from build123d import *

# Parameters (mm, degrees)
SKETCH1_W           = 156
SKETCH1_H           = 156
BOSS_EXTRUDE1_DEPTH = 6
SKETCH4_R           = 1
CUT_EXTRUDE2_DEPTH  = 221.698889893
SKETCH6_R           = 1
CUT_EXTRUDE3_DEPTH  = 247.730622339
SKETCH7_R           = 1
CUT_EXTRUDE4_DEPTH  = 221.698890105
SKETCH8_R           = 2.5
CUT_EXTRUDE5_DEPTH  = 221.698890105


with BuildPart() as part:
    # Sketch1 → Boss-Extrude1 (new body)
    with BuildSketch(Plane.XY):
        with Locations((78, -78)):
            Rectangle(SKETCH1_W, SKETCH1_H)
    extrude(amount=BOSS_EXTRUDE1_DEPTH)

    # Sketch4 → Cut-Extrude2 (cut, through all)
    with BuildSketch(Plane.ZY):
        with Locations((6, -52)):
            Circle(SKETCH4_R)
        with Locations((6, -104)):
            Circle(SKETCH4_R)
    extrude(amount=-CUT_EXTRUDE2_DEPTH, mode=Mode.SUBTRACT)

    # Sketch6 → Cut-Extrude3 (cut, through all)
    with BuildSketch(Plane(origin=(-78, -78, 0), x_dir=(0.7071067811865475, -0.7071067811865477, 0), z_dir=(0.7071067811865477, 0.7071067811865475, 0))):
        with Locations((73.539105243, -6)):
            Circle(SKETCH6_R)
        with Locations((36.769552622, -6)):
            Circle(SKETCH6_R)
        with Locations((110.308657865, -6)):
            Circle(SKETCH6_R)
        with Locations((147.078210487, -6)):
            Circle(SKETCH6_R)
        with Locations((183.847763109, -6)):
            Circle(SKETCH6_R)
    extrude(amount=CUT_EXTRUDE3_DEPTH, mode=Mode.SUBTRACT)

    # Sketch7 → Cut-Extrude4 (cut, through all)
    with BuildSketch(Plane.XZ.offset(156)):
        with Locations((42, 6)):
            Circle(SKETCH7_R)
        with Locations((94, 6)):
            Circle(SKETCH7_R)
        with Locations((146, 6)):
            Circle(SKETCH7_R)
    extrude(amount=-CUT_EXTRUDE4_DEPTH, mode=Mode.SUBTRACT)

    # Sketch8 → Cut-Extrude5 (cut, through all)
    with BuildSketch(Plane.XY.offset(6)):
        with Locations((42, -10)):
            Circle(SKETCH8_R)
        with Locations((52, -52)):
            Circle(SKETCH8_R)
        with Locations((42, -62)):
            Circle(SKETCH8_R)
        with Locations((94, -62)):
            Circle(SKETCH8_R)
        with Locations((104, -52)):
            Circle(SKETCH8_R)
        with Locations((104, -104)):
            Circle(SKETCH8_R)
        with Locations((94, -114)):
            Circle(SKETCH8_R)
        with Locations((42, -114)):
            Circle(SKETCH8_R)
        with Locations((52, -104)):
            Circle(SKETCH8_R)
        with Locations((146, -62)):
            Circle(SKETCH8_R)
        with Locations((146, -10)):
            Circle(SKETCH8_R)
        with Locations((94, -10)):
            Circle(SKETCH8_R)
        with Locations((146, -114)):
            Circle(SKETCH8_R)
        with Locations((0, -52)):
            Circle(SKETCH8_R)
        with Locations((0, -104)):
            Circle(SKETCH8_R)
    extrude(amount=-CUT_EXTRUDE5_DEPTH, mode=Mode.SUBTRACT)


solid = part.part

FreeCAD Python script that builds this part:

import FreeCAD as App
import Part
import Sketcher

V = App.Vector
Q = App.Units.Quantity


def add_polygon(sketch, points):
    """Adds a closed chain of lines whose ends are joined by coincident constraints."""
    first, n = sketch.GeometryCount, len(points)
    for a, b in zip(points, points[1:] + points[:1]):
        sketch.addGeometry(Part.LineSegment(App.Vector(*a, 0), App.Vector(*b, 0)), False)
    for i in range(n):
        sketch.addConstraint(Sketcher.Constraint("Coincident", first + i, 2, first + (i + 1) % n, 1))

doc = App.newDocument("Part")
body = doc.addObject("PartDesign::Body", "Body")

# Sketch on XY plane
sketch1 = doc.addObject("Sketcher::SketchObject", "Sketch")
body.addObject(sketch1)
sketch1.AttachmentSupport = (doc.XY_Plane, [""])
sketch1.MapMode = "FlatFace"
add_polygon(sketch1, [(0, 0), (0, -156), (156, -156), (156, 0)])  # lines 0-3
sketch1.addConstraint(Sketcher.Constraint("Vertical", 0))
sketch1.addConstraint(Sketcher.Constraint("Horizontal", 1))
sketch1.addConstraint(Sketcher.Constraint("Vertical", 2))
sketch1.addConstraint(Sketcher.Constraint("Horizontal", 3))
sketch1.addConstraint(Sketcher.Constraint("Coincident", 3, 2, -1, 1))
sketch1.addConstraint(Sketcher.Constraint("Equal", 3, 0))
sketch1.addConstraint(Sketcher.Constraint("DistanceX", 1, 1, 1, 2, Q("156 mm")))
pad1 = doc.addObject("PartDesign::Pad", "Pad")
body.addObject(pad1)
pad1.Profile = sketch1
pad1.Length = 6

# Sketch on YZ plane
sketch2 = doc.addObject("Sketcher::SketchObject", "Sketch001")
body.addObject(sketch2)
sketch2.AttachmentSupport = (doc.YZ_Plane, [""])
sketch2.MapMode = "FlatFace"
sketch2.addGeometry(Part.Circle(V(-52, 6, 0), V(0, 0, 1), 1), False)
sketch2.addGeometry(Part.Circle(V(-104, 6, 0), V(0, 0, 1), 1), False)
sketch2.addConstraint(Sketcher.Constraint("Equal", 0, 1))
sketch2.addConstraint(Sketcher.Constraint("Horizontal", 0, 3, 1, 3))
sketch2.addConstraint(Sketcher.Constraint("Diameter", 0, Q("2 mm")))
sketch2.addConstraint(Sketcher.Constraint("DistanceX", 0, 3, -1, 1, Q("52 mm")))
sketch2.addConstraint(Sketcher.Constraint("DistanceY", -1, 1, 0, 3, Q("6 mm")))
sketch2.addConstraint(Sketcher.Constraint("DistanceX", 1, 3, -1, 1, Q("104 mm")))
pocket1 = doc.addObject("PartDesign::Pocket", "Pocket")
body.addObject(pocket1)
pocket1.Profile = sketch2
pocket1.Type = "ThroughAll"
pocket1.Reversed = True

# Sketch on an angled plane
sketch3 = doc.addObject("Sketcher::SketchObject", "Sketch002")
body.addObject(sketch3)
sketch3.Placement = App.Placement(V(-78, -78, 0), App.Rotation(V(0.707106781, -0.707106781, 0), V(0, 0, -0.999999999), V(0.707106781, 0.707106781, 0), "ZXY"))
sketch3.addGeometry(Part.Circle(V(73.539105, -6, 0), V(0, 0, 1), 1), False)
sketch3.addGeometry(Part.Circle(V(36.769553, -6, 0), V(0, 0, 1), 1), False)
sketch3.addGeometry(Part.Circle(V(110.308658, -6, 0), V(0, 0, 1), 1), False)
sketch3.addGeometry(Part.Circle(V(147.07821, -6, 0), V(0, 0, 1), 1), False)
sketch3.addGeometry(Part.Circle(V(183.847763, -6, 0), V(0, 0, 1), 1), False)
sketch3.addConstraint(Sketcher.Constraint("Equal", 0, 1))
sketch3.addConstraint(Sketcher.Constraint("Equal", 1, 2))
sketch3.addConstraint(Sketcher.Constraint("Equal", 2, 3))
sketch3.addConstraint(Sketcher.Constraint("Equal", 3, 4))
sketch3.addConstraint(Sketcher.Constraint("Horizontal", 0, 3, 1, 3))
sketch3.addConstraint(Sketcher.Constraint("Horizontal", 1, 3, 2, 3))
sketch3.addConstraint(Sketcher.Constraint("Horizontal", 2, 3, 3, 3))
sketch3.addConstraint(Sketcher.Constraint("Horizontal", 3, 3, 4, 3))
sketch3.addConstraint(Sketcher.Constraint("Diameter", 0, Q("2 mm")))
sketch3.addConstraint(Sketcher.Constraint("DistanceY", 0, 3, -1, 1, Q("6 mm")))
sketch3.addConstraint(Sketcher.Constraint("DistanceX", -1, 1, 3, 3, Q("147.07821 mm")))
sketch3.addConstraint(Sketcher.Constraint("DistanceX", 1, 3, 4, 3, Q("147.07821 mm")))
sketch3.addConstraint(Sketcher.Constraint("DistanceX", -1, 1, 0, 3, Q("73.539105 mm")))
sketch3.addConstraint(Sketcher.Constraint("DistanceX", -1, 1, 1, 3, Q("36.769553 mm")))
sketch3.addConstraint(Sketcher.Constraint("DistanceX", -1, 1, 2, 3, Q("110.308658 mm")))
pocket2 = doc.addObject("PartDesign::Pocket", "Pocket001")
body.addObject(pocket2)
pocket2.Profile = sketch3
pocket2.Type = "ThroughAll"
pocket2.Reversed = True

# Sketch on XZ plane
sketch4 = doc.addObject("Sketcher::SketchObject", "Sketch003")
body.addObject(sketch4)
sketch4.AttachmentSupport = (doc.XZ_Plane, [""])
sketch4.MapMode = "FlatFace"
sketch4.AttachmentOffset = App.Placement(V(0, 0, 156), App.Rotation())
sketch4.addGeometry(Part.Circle(V(42, 6, 0), V(0, 0, 1), 1), False)
sketch4.addGeometry(Part.Circle(V(94, 6, 0), V(0, 0, 1), 1), False)
sketch4.addGeometry(Part.Circle(V(146, 6, 0), V(0, 0, 1), 1), False)
sketch4.addConstraint(Sketcher.Constraint("Equal", 0, 1))
sketch4.addConstraint(Sketcher.Constraint("Equal", 1, 2))
sketch4.addConstraint(Sketcher.Constraint("Horizontal", 0, 3, 1, 3))
sketch4.addConstraint(Sketcher.Constraint("Horizontal", 1, 3, 2, 3))
sketch4.addConstraint(Sketcher.Constraint("Diameter", 0, Q("2 mm")))
sketch4.addConstraint(Sketcher.Constraint("DistanceX", -1, 1, 0, 3, Q("42 mm")))
sketch4.addConstraint(Sketcher.Constraint("DistanceY", -1, 1, 0, 3, Q("6 mm")))
sketch4.addConstraint(Sketcher.Constraint("DistanceX", -1, 1, 1, 3, Q("94 mm")))
sketch4.addConstraint(Sketcher.Constraint("DistanceX", -1, 1, 2, 3, Q("146 mm")))
pocket3 = doc.addObject("PartDesign::Pocket", "Pocket002")
body.addObject(pocket3)
pocket3.Profile = sketch4
pocket3.Type = "ThroughAll"

# Sketch on XY plane
sketch5 = doc.addObject("Sketcher::SketchObject", "Sketch004")
body.addObject(sketch5)
sketch5.AttachmentSupport = (doc.XY_Plane, [""])
sketch5.MapMode = "FlatFace"
sketch5.AttachmentOffset = App.Placement(V(0, 0, 6), App.Rotation())
sketch5.addGeometry(Part.Circle(V(42, -10, 0), V(0, 0, 1), 2.5), False)
sketch5.addGeometry(Part.Circle(V(52, -52, 0), V(0, 0, 1), 2.5), False)
sketch5.addGeometry(Part.Circle(V(42, -62, 0), V(0, 0, 1), 2.5), False)
sketch5.addGeometry(Part.Circle(V(94, -62, 0), V(0, 0, 1), 2.5), False)
sketch5.addGeometry(Part.Circle(V(104, -52, 0), V(0, 0, 1), 2.5), False)
sketch5.addGeometry(Part.Circle(V(104, -104, 0), V(0, 0, 1), 2.5), False)
sketch5.addGeometry(Part.Circle(V(94, -114, 0), V(0, 0, 1), 2.5), False)
sketch5.addGeometry(Part.Circle(V(42, -114, 0), V(0, 0, 1), 2.5), False)
sketch5.addGeometry(Part.Circle(V(52, -104, 0), V(0, 0, 1), 2.5), False)
sketch5.addGeometry(Part.Circle(V(146, -62, 0), V(0, 0, 1), 2.5), False)
sketch5.addGeometry(Part.Circle(V(146, -10, 0), V(0, 0, 1), 2.5), False)
sketch5.addGeometry(Part.Circle(V(94, -10, 0), V(0, 0, 1), 2.5), False)
sketch5.addGeometry(Part.Circle(V(146, -114, 0), V(0, 0, 1), 2.5), False)
sketch5.addGeometry(Part.Circle(V(0, -52, 0), V(0, 0, 1), 2.5), False)
sketch5.addGeometry(Part.Circle(V(0, -104, 0), V(0, 0, 1), 2.5), False)
sketch5.addConstraint(Sketcher.Constraint("Equal", 0, 1))
sketch5.addConstraint(Sketcher.Constraint("Equal", 1, 2))
sketch5.addConstraint(Sketcher.Constraint("Equal", 2, 3))
sketch5.addConstraint(Sketcher.Constraint("Equal", 3, 4))
sketch5.addConstraint(Sketcher.Constraint("Equal", 4, 5))
sketch5.addConstraint(Sketcher.Constraint("Equal", 5, 6))
sketch5.addConstraint(Sketcher.Constraint("Equal", 6, 7))
sketch5.addConstraint(Sketcher.Constraint("Equal", 7, 8))
sketch5.addConstraint(Sketcher.Constraint("Equal", 8, 9))
sketch5.addConstraint(Sketcher.Constraint("Equal", 9, 10))
sketch5.addConstraint(Sketcher.Constraint("Equal", 10, 11))
sketch5.addConstraint(Sketcher.Constraint("Equal", 11, 12))
sketch5.addConstraint(Sketcher.Constraint("Equal", 12, 13))
sketch5.addConstraint(Sketcher.Constraint("Equal", 13, 14))
sketch5.addConstraint(Sketcher.Constraint("PointOnObject", 13, 3, -2))
sketch5.addConstraint(Sketcher.Constraint("PointOnObject", 14, 3, -2))
sketch5.addConstraint(Sketcher.Constraint("Horizontal", 2, 3, 3, 3))
sketch5.addConstraint(Sketcher.Constraint("Horizontal", 1, 3, 4, 3))
sketch5.addConstraint(Sketcher.Constraint("Horizontal", 6, 3, 7, 3))
sketch5.addConstraint(Sketcher.Constraint("Horizontal", 5, 3, 8, 3))
sketch5.addConstraint(Sketcher.Constraint("Horizontal", 3, 3, 9, 3))
sketch5.addConstraint(Sketcher.Constraint("Horizontal", 0, 3, 10, 3))
sketch5.addConstraint(Sketcher.Constraint("Horizontal", 10, 3, 11, 3))
sketch5.addConstraint(Sketcher.Constraint("Horizontal", 7, 3, 12, 3))
sketch5.addConstraint(Sketcher.Constraint("Horizontal", 4, 3, 13, 3))
sketch5.addConstraint(Sketcher.Constraint("Horizontal", 8, 3, 14, 3))
sketch5.addConstraint(Sketcher.Constraint("Vertical", 0, 3, 2, 3))
sketch5.addConstraint(Sketcher.Constraint("Vertical", 4, 3, 5, 3))
sketch5.addConstraint(Sketcher.Constraint("Vertical", 3, 3, 6, 3))
sketch5.addConstraint(Sketcher.Constraint("Vertical", 2, 3, 7, 3))
sketch5.addConstraint(Sketcher.Constraint("Vertical", 1, 3, 8, 3))
sketch5.addConstraint(Sketcher.Constraint("Vertical", 9, 3, 10, 3))
sketch5.addConstraint(Sketcher.Constraint("Vertical", 6, 3, 11, 3))
sketch5.addConstraint(Sketcher.Constraint("Vertical", 10, 3, 12, 3))
sketch5.addConstraint(Sketcher.Constraint("Diameter", 0, Q("5 mm")))
sketch5.addConstraint(Sketcher.Constraint("DistanceX", -1, 1, 0, 3, Q("42 mm")))
sketch5.addConstraint(Sketcher.Constraint("DistanceY", 0, 3, -1, 1, Q("10 mm")))
sketch5.addConstraint(Sketcher.Constraint("DistanceX", -1, 1, 1, 3, Q("52 mm")))
sketch5.addConstraint(Sketcher.Constraint("DistanceY", 1, 3, -1, 1, Q("52 mm")))
sketch5.addConstraint(Sketcher.Constraint("DistanceY", 2, 3, -1, 1, Q("62 mm")))
sketch5.addConstraint(Sketcher.Constraint("DistanceX", -1, 1, 3, 3, Q("94 mm")))
sketch5.addConstraint(Sketcher.Constraint("DistanceX", -1, 1, 4, 3, Q("104 mm")))
sketch5.addConstraint(Sketcher.Constraint("DistanceY", 5, 3, -1, 1, Q("104 mm")))
sketch5.addConstraint(Sketcher.Constraint("DistanceY", 6, 3, -1, 1, Q("114 mm")))
sketch5.addConstraint(Sketcher.Constraint("DistanceX", -1, 1, 9, 3, Q("146 mm")))
pocket4 = doc.addObject("PartDesign::Pocket", "Pocket003")
body.addObject(pocket4)
pocket4.Profile = sketch5
pocket4.Type = "ThroughAll"

doc.recompute()
